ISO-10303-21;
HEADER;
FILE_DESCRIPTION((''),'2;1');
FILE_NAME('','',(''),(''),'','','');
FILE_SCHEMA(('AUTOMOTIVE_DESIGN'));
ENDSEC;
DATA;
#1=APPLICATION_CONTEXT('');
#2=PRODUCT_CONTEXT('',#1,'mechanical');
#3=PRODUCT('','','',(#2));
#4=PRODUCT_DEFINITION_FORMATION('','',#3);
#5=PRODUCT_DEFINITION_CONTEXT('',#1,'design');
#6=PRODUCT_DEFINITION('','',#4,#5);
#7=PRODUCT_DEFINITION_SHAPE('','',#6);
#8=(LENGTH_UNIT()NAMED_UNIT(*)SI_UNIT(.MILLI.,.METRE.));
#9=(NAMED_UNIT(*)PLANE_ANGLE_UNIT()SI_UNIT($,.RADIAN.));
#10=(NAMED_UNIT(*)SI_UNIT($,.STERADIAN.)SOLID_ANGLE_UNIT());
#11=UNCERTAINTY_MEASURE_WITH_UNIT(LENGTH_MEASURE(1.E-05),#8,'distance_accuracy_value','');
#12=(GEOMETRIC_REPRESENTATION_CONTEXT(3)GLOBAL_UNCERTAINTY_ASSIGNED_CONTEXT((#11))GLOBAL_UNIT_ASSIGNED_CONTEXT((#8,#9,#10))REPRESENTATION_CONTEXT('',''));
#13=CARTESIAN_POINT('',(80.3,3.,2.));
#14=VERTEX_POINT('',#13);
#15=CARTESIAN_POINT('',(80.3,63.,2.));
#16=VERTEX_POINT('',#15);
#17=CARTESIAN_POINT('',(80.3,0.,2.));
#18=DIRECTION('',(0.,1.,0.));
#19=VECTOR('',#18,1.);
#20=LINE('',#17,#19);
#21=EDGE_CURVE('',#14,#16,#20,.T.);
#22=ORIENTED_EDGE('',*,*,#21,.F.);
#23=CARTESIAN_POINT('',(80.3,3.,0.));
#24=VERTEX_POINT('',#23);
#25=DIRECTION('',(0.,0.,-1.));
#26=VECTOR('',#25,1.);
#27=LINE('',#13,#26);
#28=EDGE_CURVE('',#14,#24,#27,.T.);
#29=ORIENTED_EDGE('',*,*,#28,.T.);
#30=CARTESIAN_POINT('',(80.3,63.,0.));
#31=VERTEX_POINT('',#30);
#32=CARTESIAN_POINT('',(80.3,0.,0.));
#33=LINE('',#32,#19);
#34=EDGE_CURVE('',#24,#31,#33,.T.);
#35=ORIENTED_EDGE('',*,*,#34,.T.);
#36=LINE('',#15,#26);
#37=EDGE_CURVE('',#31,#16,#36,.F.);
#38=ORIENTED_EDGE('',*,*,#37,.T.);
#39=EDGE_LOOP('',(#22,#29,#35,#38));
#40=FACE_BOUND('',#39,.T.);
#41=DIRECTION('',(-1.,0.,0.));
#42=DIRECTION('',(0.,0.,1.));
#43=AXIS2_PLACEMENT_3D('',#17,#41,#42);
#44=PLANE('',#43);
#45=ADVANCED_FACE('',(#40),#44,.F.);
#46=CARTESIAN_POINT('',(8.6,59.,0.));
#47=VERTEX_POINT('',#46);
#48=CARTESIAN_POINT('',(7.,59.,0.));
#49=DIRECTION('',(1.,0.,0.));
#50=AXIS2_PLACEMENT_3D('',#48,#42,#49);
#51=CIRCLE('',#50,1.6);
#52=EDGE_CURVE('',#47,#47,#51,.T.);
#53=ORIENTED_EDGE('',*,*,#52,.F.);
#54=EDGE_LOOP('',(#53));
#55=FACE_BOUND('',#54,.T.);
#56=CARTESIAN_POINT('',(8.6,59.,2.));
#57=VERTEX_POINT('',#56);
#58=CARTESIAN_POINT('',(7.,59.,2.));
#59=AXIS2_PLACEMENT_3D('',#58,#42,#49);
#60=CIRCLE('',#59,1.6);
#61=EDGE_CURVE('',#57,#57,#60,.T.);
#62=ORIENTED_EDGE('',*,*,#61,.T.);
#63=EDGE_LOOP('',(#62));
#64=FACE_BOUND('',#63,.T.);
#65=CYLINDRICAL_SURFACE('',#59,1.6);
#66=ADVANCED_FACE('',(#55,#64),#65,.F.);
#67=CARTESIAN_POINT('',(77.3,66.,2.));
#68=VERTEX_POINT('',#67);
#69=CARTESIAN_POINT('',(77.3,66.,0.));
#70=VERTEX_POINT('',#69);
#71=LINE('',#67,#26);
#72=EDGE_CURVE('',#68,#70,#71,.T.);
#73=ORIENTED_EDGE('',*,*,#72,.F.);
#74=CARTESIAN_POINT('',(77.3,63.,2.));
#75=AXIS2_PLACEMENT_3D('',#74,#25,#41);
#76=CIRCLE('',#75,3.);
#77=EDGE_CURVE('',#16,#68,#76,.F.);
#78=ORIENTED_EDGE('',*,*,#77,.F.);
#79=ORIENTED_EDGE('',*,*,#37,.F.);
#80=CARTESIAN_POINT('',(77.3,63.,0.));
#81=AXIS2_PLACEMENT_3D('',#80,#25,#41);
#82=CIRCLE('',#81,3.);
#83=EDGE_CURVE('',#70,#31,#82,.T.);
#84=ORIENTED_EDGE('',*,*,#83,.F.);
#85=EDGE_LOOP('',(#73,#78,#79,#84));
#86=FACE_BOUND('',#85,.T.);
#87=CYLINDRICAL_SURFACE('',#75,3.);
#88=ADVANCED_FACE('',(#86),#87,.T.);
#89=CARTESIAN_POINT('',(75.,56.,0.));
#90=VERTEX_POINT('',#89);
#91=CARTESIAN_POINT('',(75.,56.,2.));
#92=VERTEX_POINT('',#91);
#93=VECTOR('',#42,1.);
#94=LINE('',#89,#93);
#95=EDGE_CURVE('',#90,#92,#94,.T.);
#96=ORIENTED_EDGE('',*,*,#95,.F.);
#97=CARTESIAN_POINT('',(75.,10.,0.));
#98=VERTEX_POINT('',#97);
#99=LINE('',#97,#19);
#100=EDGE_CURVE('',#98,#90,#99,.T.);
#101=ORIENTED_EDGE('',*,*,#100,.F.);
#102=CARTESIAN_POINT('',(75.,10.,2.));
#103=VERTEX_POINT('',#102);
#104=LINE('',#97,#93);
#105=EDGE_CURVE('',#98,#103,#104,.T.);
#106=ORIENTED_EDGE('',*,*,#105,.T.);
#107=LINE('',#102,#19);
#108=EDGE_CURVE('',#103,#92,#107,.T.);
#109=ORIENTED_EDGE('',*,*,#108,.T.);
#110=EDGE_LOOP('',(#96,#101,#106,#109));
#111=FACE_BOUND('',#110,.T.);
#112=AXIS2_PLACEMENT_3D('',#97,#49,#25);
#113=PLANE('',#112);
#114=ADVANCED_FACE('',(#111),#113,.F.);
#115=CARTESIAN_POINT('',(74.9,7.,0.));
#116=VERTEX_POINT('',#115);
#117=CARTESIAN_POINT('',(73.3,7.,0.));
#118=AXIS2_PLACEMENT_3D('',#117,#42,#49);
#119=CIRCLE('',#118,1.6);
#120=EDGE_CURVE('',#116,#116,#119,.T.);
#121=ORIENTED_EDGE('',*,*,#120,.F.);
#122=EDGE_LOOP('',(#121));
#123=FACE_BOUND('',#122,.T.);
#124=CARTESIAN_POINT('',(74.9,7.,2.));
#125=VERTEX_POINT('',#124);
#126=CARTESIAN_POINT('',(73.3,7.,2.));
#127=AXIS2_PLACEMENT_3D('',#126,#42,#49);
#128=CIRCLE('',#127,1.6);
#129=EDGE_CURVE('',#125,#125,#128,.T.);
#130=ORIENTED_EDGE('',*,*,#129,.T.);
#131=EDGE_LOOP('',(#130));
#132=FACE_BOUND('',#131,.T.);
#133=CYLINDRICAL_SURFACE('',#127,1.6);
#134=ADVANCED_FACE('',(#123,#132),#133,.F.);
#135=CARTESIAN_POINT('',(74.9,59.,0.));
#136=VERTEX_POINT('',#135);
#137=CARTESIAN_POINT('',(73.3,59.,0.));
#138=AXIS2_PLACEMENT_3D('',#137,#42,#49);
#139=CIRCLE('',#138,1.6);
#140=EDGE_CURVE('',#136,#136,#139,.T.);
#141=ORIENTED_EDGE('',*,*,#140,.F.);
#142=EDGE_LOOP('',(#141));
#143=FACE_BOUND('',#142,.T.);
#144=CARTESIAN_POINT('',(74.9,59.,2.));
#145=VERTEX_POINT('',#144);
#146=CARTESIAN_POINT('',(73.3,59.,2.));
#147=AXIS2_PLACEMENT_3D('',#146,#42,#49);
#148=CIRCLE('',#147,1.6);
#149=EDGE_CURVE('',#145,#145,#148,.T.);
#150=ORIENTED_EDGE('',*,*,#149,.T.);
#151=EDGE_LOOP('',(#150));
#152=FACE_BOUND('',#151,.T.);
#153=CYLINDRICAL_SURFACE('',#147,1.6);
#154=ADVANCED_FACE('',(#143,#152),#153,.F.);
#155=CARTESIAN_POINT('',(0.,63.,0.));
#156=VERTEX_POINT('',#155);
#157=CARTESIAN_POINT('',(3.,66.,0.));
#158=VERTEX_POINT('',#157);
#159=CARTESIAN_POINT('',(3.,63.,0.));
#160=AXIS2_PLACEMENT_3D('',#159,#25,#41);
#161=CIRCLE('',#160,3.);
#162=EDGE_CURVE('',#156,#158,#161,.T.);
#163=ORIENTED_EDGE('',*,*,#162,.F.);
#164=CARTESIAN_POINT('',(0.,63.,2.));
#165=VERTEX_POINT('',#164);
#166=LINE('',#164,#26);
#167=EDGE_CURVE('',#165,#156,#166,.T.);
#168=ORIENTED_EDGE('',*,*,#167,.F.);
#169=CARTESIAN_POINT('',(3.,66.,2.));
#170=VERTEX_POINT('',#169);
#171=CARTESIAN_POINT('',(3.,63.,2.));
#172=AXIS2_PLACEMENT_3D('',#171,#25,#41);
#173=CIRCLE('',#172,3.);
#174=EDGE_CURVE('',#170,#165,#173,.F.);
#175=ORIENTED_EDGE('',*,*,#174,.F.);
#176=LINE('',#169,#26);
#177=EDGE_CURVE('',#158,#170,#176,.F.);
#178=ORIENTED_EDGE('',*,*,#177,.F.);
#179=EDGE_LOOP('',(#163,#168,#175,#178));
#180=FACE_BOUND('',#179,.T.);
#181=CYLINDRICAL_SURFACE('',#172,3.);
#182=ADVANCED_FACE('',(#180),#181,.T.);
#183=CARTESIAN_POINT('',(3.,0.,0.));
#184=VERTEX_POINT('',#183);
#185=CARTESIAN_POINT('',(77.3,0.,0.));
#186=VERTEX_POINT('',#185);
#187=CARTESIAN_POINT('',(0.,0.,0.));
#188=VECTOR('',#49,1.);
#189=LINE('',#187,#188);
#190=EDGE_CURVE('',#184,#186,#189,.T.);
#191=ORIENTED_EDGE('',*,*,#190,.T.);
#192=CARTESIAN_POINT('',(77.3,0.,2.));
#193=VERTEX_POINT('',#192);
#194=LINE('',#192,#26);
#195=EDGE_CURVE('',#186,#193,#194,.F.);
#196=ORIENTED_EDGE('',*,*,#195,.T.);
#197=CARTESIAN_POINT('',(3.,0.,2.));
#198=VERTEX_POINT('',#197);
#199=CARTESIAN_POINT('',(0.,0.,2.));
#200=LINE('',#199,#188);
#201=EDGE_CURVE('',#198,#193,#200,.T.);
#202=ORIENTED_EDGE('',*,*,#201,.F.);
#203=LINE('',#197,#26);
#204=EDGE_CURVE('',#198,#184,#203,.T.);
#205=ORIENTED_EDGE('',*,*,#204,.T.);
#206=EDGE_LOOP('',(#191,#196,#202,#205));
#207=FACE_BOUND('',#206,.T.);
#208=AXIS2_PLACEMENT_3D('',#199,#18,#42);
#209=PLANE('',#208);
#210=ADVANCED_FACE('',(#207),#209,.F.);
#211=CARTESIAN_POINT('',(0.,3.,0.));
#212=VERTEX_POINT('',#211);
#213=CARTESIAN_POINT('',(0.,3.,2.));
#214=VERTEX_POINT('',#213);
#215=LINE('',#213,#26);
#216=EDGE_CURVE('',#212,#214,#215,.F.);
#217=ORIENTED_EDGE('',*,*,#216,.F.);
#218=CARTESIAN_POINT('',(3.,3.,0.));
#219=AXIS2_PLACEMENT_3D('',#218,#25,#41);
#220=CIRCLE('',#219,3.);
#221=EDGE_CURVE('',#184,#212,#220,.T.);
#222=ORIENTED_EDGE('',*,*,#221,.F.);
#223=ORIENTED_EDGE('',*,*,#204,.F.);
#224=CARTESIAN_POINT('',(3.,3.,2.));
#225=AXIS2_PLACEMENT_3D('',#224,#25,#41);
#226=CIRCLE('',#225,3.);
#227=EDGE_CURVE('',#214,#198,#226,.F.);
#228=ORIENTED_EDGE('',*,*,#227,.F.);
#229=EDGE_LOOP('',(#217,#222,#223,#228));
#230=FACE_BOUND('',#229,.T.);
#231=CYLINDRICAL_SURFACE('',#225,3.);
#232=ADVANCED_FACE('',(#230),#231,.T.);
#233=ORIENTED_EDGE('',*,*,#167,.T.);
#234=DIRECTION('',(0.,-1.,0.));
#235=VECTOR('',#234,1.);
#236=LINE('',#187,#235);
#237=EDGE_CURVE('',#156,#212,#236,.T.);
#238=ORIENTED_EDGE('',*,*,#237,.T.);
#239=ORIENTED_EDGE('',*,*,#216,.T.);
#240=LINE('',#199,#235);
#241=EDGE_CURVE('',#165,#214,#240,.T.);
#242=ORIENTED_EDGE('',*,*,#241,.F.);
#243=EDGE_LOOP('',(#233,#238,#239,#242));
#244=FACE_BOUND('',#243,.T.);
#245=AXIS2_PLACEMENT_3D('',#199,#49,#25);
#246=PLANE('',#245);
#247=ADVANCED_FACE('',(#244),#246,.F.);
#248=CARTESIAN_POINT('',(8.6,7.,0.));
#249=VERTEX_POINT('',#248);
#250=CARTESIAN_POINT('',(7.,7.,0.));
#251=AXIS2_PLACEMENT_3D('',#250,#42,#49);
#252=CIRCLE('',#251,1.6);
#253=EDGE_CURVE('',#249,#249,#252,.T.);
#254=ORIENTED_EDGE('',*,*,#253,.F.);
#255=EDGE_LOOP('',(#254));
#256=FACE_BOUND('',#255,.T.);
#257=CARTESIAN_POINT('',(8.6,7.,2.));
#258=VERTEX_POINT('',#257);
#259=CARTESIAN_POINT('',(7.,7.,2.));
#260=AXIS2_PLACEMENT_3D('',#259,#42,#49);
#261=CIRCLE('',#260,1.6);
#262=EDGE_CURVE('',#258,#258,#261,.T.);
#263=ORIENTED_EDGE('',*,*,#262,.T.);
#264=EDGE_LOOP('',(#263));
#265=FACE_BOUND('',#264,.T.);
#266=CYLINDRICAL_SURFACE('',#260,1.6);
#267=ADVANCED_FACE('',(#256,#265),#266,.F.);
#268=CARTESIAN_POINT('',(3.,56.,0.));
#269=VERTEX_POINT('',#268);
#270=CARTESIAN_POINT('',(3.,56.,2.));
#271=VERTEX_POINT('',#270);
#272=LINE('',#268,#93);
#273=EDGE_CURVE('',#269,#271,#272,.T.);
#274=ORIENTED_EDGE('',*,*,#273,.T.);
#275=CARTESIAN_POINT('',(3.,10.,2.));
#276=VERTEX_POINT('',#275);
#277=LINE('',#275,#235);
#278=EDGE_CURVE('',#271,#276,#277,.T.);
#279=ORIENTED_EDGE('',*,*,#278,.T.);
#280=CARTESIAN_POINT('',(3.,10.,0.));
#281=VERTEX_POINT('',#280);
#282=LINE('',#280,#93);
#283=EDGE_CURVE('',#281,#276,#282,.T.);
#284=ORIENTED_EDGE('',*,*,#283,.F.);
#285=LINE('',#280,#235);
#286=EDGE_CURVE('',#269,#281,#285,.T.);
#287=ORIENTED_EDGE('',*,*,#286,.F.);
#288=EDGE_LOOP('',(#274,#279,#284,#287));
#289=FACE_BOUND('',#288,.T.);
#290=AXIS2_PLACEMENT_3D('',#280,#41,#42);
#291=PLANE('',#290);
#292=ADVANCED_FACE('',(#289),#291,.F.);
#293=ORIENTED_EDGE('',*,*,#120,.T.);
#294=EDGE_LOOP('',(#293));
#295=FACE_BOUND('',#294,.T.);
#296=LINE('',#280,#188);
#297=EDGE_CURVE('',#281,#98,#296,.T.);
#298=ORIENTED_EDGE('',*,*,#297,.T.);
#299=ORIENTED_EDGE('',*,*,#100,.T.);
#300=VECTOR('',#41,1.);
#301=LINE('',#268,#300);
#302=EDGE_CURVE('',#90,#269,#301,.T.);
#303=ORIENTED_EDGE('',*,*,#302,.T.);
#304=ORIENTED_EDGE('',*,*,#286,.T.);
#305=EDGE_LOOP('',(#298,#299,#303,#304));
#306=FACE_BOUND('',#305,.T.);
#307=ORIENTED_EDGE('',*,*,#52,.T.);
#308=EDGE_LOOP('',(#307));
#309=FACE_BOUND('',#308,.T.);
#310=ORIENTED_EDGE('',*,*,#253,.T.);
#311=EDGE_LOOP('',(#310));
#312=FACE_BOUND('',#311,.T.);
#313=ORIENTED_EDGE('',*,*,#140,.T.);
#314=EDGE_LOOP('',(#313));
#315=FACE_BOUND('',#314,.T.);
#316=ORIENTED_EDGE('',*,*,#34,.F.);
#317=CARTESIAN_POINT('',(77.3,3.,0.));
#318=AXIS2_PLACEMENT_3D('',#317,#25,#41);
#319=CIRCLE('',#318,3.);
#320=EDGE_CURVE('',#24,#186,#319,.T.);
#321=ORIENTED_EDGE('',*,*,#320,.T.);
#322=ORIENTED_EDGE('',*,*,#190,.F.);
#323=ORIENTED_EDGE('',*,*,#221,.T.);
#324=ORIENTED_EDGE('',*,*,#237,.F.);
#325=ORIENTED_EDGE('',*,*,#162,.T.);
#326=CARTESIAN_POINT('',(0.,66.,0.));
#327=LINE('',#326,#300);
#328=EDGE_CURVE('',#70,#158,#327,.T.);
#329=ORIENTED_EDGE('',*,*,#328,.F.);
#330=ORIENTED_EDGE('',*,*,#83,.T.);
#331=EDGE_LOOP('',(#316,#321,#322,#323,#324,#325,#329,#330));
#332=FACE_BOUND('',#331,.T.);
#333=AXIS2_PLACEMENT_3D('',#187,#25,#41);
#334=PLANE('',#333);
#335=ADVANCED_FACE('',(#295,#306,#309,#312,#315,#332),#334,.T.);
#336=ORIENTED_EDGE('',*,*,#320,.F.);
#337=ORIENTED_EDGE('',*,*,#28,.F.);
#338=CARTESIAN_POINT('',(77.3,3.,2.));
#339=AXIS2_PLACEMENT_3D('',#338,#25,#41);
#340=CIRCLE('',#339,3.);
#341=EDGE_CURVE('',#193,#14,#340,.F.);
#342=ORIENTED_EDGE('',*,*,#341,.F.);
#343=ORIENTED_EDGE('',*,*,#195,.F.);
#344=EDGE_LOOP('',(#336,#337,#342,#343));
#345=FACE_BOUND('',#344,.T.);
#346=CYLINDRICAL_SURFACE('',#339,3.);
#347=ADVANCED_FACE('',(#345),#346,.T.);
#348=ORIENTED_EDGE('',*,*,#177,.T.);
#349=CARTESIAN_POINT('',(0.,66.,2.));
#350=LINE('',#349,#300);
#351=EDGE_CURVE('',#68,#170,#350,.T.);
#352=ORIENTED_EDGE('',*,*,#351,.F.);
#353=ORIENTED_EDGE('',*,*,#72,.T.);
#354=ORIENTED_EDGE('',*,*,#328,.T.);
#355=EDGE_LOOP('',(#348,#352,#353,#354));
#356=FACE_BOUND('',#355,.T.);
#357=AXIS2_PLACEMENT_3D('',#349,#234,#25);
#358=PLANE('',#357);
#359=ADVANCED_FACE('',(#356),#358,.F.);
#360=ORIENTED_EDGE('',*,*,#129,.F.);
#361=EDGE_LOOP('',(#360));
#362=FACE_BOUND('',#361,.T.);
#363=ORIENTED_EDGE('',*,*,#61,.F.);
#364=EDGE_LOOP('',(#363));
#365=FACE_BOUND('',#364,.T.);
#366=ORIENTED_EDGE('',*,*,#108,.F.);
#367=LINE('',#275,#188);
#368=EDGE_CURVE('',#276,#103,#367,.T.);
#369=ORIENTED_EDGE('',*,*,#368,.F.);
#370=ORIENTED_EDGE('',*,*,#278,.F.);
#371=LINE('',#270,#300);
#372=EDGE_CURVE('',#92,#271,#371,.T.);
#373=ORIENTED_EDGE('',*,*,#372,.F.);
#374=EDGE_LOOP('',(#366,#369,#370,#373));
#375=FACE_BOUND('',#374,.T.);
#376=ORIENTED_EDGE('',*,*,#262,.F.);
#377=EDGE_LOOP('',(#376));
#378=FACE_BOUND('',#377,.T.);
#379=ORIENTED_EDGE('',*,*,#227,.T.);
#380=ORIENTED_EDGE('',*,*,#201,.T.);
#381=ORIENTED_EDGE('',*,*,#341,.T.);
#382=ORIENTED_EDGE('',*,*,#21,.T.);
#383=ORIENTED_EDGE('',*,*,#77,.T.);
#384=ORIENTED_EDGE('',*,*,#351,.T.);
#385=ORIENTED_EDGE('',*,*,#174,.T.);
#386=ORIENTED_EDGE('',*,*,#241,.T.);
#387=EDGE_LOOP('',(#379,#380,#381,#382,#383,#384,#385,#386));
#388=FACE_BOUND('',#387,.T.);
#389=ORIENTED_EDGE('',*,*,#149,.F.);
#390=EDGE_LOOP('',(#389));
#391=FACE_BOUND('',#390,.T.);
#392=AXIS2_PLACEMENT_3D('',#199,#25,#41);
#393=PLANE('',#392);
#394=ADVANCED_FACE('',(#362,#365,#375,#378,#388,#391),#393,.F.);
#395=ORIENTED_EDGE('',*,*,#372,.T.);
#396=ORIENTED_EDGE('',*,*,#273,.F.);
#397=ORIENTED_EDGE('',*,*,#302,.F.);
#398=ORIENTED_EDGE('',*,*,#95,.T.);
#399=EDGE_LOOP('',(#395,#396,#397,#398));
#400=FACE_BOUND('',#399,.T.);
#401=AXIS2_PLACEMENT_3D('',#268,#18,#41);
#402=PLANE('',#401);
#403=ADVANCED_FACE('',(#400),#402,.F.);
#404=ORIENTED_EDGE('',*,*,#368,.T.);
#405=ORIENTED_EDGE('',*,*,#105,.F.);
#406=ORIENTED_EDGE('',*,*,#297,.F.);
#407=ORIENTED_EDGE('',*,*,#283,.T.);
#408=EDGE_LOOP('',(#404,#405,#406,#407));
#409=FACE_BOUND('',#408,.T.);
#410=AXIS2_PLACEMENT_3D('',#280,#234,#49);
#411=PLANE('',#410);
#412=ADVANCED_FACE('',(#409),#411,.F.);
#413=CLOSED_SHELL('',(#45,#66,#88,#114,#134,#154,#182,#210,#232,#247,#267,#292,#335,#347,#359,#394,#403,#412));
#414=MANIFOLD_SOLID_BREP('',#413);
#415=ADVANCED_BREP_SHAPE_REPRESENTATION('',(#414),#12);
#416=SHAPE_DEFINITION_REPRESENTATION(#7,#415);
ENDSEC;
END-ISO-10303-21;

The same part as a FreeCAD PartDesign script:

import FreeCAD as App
import Part
import Sketcher

V = App.Vector
Q = App.Units.Quantity


def edges_at(feature, points):
    """Names of the edges that pass closest to the given points."""
    edges = feature.Shape.Edges
    near = lambda p: min(range(len(edges)), key=lambda i: edges[i].distToShape(Part.Vertex(*p))[0])
    return sorted({f"Edge{near(p) + 1}" for p in points})


def add_polygon(sketch, points):
    """Adds a closed chain of lines whose ends are joined by coincident constraints."""
    first, n = sketch.GeometryCount, len(points)
    for a, b in zip(points, points[1:] + points[:1]):
        sketch.addGeometry(Part.LineSegment(App.Vector(*a, 0), App.Vector(*b, 0)), False)
    for i in range(n):
        sketch.addConstraint(Sketcher.Constraint("Coincident", first + i, 2, first + (i + 1) % n, 1))

doc = App.newDocument("Part")
body = doc.addObject("PartDesign::Body", "Body")

# Sketch on XY plane
sketch1 = body.newObject("Sketcher::SketchObject", "Sketch")
sketch1.AttachmentSupport = (doc.getObject("XY_Plane"), [""])
sketch1.MapMode = "FlatFace"
add_polygon(sketch1, [(0, 66), (0, 0), (80.3, 0), (80.3, 66)])  # lines 0-3
sketch1.addConstraint([
    Sketcher.Constraint("Vertical", 0),
    Sketcher.Constraint("Horizontal", 1),
    Sketcher.Constraint("Vertical", 2),
    Sketcher.Constraint("Horizontal", 3),
    Sketcher.Constraint("Coincident", 0, 2, -1, 1),
    Sketcher.Constraint("DistanceY", 0, 2, 0, 1, Q("66 mm")),
    Sketcher.Constraint("DistanceX", 1, 1, 1, 2, Q("80.3 mm")),
])
pad1 = body.newObject("PartDesign::Pad", "Pad")
pad1.Profile = sketch1
pad1.Length = 2

# Sketch on XY plane
sketch2 = body.newObject("Sketcher::SketchObject", "Sketch001")
sketch2.AttachmentSupport = (doc.getObject("XY_Plane"), [""])
sketch2.MapMode = "FlatFace"
sketch2.AttachmentOffset = App.Placement(V(0, 0, 2), App.Rotation())
sketch2.addGeometry([
    Part.Circle(V(7, 59, 0), V(0, 0, 1), 1.6),
    Part.Circle(V(73.3, 59, 0), V(0, 0, 1), 1.6),
    Part.Circle(V(73.3, 7, 0), V(0, 0, 1), 1.6),
    Part.Circle(V(7, 7, 0), V(0, 0, 1), 1.6),
], False)
sketch2.addConstraint([
    Sketcher.Constraint("Equal", 0, 1),
    Sketcher.Constraint("Equal", 1, 2),
    Sketcher.Constraint("Equal", 2, 3),
    Sketcher.Constraint("Horizontal", 0, 3, 1, 3),
    Sketcher.Constraint("Horizontal", 2, 3, 3, 3),
    Sketcher.Constraint("Vertical", 1, 3, 2, 3),
    Sketcher.Constraint("Vertical", 0, 3, 3, 3),
    Sketcher.Constraint("Diameter", 0, Q("3.2 mm")),
    Sketcher.Constraint("DistanceX", -1, 1, 0, 3, Q("7 mm")),
    Sketcher.Constraint("DistanceY", -1, 1, 0, 3, Q("59 mm")),
    Sketcher.Constraint("DistanceY", -1, 1, 2, 3, Q("7 mm")),
    Sketcher.Constraint("DistanceX", -1, 1, 1, 3, Q("73.3 mm")),
])
doc.recompute()
hole = body.newObject("PartDesign::Hole", "Hole")
hole.Profile = sketch2
hole.ThreadType = "None"
hole.Diameter = 3.2
hole.DepthType = "ThroughAll"
doc.recompute()

fillet = body.newObject("PartDesign::Fillet", "Fillet")
fillet.Base = (hole, edges_at(hole, [
    (0, 66, 1),
    (80.3, 66, 1),
    (80.3, 0, 1),
    (0, 0, 1),
]))
fillet.Radius = 3

# Sketch on XY plane
sketch3 = body.newObject("Sketcher::SketchObject", "Sketch002")
sketch3.AttachmentSupport = (doc.getObject("XY_Plane"), [""])
sketch3.MapMode = "FlatFace"
sketch3.AttachmentOffset = App.Placement(V(0, 0, 2), App.Rotation())
add_polygon(sketch3, [(3, 56), (3, 10), (75, 10), (75, 56)])  # lines 0-3
sketch3.addConstraint([
    Sketcher.Constraint("Vertical", 0),
    Sketcher.Constraint("Horizontal", 1),
    Sketcher.Constraint("Vertical", 2),
    Sketcher.Constraint("Horizontal", 3),
    Sketcher.Constraint("DistanceX", 1, 1, 1, 2, Q("72 mm")),
    Sketcher.Constraint("DistanceY", 0, 2, 0, 1, Q("46 mm")),
    Sketcher.Constraint("DistanceX", -1, 1, 0, 2, Q("3 mm")),
    Sketcher.Constraint("DistanceY", -1, 1, 0, 2, Q("10 mm")),
])
pocket1 = body.newObject("PartDesign::Pocket", "Pocket")
pocket1.Profile = sketch3
pocket1.Type = "ThroughAll"

doc.recompute()
